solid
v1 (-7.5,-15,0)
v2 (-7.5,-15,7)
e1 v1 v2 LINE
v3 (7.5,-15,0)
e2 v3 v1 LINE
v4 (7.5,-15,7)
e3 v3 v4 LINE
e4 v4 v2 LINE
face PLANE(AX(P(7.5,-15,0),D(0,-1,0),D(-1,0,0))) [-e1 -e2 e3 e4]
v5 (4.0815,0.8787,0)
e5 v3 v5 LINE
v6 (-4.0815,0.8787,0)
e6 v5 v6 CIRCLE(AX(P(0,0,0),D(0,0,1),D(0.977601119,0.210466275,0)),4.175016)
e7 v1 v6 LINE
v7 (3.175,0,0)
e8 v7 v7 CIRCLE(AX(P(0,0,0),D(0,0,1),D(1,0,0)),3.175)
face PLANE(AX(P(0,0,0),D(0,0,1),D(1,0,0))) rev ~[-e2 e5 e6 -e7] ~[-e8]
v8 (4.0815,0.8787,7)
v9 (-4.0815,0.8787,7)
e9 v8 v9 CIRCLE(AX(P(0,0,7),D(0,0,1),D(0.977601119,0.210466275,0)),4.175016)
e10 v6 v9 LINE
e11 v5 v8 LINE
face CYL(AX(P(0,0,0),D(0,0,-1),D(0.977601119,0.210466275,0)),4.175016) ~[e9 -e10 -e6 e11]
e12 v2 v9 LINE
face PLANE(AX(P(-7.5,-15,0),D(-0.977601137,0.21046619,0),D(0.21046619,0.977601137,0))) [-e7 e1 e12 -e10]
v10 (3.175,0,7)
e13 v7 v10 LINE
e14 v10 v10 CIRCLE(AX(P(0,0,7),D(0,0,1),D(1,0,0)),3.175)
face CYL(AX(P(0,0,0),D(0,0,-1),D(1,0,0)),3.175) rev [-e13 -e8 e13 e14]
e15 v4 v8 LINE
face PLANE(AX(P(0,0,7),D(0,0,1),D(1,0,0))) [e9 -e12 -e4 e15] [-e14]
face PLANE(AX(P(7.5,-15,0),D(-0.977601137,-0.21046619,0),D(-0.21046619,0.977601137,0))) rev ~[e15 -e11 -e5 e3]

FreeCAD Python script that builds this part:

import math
import FreeCAD as App
import Part
import Sketcher

V = App.Vector
Q = App.Units.Quantity

doc = App.newDocument("Part")
body = doc.addObject("PartDesign::Body", "Body")

sketch1 = body.newObject("Sketcher::SketchObject", "Sketch")
sketch1.AttachmentSupport = (doc.getObject("XY_Plane"), [""])
sketch1.MapMode = "FlatFace"
sketch1.addGeometry(Part.LineSegment(V(7.5, -15, 0), V(4.0815, 0.8787, 0)), False)
sketch1.addGeometry(Part.ArcOfCircle(Part.Circle(V(0, 0, 0), V(0, 0, 1), 4.175016), math.radians(12.149679), math.radians(167.850321)), False)
sketch1.addGeometry(Part.LineSegment(V(-4.0815, 0.8787, 0), V(-7.5, -15, 0)), False)
sketch1.addGeometry(Part.LineSegment(V(-7.5, -15, 0), V(7.5, -15, 0)), False)
sketch1.addGeometry(Part.Circle(V(0, 0, 0), V(0, 0, 1), 3.175), False)
sketch1.addConstraint(Sketcher.Constraint("Tangent", 0, 2, 1, 1))
sketch1.addConstraint(Sketcher.Constraint("Tangent", 1, 2, 2, 1))
sketch1.addConstraint(Sketcher.Constraint("Coincident", 2, 2, 3, 1))
sketch1.addConstraint(Sketcher.Constraint("Coincident", 3, 2, 0, 1))
sketch1.addConstraint(Sketcher.Constraint("Horizontal", 3))
sketch1.addConstraint(Sketcher.Constraint("Coincident", 1, 3, -1, 1))
sketch1.addConstraint(Sketcher.Constraint("Coincident", 4, 3, -1, 1))
sketch1.addConstraint(Sketcher.Constraint("Horizontal", 0, 2, 1, 2))
sketch1.addConstraint(Sketcher.Constraint("Diameter", 4, Q("6.35 mm")))
sketch1.addConstraint(Sketcher.Constraint("DistanceX", 3, 1, 3, 2, Q("15 mm")))
sketch1.addConstraint(Sketcher.Constraint("DistanceY", 2, 2, -1, 1, Q("15 mm")))
sketch1.addConstraint(Sketcher.Constraint("Radius", 1, Q("4.175 mm")))
pad1 = body.newObject("PartDesign::Pad", "Pad")
pad1.Profile = sketch1
pad1.Length = 7

doc.recompute()
